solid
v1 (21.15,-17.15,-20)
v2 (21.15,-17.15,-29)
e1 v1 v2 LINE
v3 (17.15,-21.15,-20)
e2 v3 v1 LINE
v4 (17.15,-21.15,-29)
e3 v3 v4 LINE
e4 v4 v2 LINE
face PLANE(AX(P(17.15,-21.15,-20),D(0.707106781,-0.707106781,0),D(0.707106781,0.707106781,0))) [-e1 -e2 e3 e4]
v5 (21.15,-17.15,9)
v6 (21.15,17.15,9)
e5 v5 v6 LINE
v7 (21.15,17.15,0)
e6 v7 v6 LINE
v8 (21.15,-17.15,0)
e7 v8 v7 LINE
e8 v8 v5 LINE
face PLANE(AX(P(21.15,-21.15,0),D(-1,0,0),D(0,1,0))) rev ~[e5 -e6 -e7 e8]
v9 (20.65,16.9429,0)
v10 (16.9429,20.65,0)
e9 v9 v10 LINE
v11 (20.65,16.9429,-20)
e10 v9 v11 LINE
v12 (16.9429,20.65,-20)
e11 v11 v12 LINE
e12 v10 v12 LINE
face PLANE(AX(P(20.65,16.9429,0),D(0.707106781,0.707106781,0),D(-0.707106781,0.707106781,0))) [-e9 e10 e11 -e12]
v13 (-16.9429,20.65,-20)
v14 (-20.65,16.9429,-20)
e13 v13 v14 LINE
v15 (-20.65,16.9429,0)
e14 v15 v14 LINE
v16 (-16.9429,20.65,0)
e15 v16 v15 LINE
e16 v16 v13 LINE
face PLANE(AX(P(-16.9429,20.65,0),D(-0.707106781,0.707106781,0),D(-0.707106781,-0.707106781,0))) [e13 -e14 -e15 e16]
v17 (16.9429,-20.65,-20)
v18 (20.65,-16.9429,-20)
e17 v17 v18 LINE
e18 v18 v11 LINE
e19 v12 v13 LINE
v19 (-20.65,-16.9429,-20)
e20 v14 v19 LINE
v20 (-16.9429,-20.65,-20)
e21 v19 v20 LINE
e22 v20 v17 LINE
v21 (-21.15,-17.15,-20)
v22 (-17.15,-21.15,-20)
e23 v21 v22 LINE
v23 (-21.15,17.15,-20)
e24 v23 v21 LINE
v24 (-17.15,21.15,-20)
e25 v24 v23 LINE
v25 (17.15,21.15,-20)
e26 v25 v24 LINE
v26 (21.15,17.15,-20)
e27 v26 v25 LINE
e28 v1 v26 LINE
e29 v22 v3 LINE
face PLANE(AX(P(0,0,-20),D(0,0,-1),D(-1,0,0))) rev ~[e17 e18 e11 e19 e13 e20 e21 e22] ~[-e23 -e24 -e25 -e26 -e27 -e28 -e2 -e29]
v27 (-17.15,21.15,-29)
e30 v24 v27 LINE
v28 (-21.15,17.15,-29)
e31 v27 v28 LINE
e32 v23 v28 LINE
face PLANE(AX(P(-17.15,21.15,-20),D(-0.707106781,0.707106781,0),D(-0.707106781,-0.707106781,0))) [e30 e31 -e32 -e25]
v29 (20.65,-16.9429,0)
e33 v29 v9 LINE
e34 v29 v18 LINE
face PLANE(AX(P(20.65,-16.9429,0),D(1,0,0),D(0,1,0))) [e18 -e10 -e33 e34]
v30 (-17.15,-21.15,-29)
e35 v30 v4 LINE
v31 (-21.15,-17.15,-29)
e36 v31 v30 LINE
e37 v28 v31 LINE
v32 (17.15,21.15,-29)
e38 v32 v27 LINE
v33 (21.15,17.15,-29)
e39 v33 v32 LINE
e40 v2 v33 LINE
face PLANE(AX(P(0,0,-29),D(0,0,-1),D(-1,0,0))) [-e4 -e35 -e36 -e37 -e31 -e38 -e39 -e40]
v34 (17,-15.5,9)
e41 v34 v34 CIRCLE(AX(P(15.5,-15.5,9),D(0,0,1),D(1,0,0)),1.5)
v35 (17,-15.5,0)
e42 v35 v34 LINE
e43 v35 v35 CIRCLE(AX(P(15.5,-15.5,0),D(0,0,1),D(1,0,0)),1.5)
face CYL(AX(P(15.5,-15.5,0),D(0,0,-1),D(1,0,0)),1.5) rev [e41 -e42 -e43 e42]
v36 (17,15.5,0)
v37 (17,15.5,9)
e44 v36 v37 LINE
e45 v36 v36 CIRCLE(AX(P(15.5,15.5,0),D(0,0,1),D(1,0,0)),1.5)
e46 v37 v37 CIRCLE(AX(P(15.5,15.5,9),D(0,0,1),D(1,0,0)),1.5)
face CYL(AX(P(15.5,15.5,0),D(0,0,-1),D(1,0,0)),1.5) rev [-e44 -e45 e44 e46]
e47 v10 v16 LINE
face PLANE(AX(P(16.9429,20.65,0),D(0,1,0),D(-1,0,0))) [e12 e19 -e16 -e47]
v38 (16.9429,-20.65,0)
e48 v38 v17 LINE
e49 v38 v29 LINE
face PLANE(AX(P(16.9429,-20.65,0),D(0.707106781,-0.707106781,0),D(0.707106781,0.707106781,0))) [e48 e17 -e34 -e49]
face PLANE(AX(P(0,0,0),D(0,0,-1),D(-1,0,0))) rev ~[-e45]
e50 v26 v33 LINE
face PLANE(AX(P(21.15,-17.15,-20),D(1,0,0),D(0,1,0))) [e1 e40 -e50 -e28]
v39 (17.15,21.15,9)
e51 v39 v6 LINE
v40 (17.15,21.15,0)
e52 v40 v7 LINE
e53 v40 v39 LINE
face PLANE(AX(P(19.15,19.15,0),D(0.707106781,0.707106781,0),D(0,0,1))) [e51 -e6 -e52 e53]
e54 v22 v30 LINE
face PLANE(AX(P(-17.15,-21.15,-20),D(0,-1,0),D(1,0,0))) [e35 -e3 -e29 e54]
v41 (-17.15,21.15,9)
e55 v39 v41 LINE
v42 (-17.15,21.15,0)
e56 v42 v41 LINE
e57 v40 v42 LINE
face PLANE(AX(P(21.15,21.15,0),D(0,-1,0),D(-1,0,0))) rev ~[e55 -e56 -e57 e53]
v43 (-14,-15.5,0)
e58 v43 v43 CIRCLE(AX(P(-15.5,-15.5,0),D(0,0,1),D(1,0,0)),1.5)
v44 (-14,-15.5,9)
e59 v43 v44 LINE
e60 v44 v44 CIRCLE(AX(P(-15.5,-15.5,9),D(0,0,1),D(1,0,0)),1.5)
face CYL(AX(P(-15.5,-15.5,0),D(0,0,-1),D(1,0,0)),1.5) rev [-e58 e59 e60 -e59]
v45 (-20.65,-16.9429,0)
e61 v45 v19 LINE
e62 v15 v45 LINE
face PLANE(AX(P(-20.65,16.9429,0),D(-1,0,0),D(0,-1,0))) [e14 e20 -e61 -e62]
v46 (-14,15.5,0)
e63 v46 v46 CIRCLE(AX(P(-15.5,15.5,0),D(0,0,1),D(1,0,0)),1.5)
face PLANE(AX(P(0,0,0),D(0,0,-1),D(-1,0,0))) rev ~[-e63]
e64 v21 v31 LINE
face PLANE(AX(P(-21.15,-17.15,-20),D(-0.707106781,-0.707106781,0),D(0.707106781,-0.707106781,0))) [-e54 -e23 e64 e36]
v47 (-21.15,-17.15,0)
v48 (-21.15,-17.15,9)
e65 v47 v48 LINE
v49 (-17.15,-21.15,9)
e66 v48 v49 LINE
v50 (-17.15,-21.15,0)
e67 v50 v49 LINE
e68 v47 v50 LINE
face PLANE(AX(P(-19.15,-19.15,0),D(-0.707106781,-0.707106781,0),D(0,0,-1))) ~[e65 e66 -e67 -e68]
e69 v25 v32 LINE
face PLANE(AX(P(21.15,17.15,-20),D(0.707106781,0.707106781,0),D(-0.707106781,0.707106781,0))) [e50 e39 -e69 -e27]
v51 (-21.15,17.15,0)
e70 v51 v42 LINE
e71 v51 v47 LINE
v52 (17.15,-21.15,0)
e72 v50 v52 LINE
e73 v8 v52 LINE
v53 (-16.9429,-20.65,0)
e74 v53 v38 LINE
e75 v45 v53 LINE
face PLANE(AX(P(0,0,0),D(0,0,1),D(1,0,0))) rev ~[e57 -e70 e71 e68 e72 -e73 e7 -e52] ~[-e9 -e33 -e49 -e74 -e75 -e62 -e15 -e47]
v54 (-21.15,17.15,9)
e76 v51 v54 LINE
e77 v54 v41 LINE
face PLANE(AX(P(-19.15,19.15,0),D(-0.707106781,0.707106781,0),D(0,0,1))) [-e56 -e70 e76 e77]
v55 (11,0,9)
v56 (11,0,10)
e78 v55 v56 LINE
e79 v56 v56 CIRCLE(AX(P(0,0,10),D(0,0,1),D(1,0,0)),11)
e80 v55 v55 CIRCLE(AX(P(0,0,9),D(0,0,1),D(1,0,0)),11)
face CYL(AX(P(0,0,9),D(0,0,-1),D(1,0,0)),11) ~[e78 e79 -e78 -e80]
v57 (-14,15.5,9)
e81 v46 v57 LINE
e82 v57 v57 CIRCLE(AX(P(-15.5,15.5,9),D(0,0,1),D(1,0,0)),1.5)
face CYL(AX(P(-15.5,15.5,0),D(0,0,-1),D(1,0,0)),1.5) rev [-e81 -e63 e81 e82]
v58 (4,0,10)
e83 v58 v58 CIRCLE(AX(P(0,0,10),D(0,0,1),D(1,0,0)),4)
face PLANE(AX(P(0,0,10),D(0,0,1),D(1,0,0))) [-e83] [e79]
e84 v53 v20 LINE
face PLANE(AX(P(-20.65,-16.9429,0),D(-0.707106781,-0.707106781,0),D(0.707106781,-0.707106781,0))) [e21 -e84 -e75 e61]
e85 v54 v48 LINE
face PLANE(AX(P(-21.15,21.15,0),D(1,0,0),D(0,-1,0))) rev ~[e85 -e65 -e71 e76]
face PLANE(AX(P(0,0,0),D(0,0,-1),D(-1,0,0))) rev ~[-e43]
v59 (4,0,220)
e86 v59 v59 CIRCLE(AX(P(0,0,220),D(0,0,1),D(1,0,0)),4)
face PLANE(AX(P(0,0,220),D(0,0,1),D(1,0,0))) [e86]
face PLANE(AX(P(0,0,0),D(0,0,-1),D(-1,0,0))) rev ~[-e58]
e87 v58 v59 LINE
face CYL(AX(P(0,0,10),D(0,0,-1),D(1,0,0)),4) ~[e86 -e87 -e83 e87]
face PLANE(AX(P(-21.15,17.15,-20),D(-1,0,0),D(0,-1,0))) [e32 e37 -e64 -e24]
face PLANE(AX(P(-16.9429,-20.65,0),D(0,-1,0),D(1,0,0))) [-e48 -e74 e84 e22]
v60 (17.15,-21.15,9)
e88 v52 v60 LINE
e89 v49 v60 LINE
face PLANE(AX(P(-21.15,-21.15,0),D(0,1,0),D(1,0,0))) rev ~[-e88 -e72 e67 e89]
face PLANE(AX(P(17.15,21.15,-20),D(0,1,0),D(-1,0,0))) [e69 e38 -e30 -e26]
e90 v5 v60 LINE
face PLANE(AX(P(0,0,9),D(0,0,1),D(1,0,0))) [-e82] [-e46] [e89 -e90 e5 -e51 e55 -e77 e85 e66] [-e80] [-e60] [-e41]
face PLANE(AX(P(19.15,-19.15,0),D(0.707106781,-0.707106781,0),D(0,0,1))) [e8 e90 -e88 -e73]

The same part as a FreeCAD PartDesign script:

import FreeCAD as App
import Part
import Sketcher

V = App.Vector


def edges_at(feature, points):
    """Names of the edges that pass closest to the given points."""
    edges = feature.Shape.Edges
    near = lambda p: min(range(len(edges)), key=lambda i: edges[i].distToShape(Part.Vertex(*p))[0])
    return sorted({f"Edge{near(p) + 1}" for p in points})

doc = App.newDocument("Part")
body = doc.addObject("PartDesign::Body", "Body")

# Sketch on XY plane
sketch1 = body.newObject("Sketcher::SketchObject", "Sketch")
sketch1.AttachmentSupport = (doc.getObject("XY_Plane"), [""])
sketch1.MapMode = "FlatFace"
sketch1.addGeometry(Part.LineSegment(V(-21.1, 21.1, 0), V(-21.1, -21.1, 0)), False)
sketch1.addGeometry(Part.LineSegment(V(-21.1, -21.1, 0), V(21.1, -21.1, 0)), False)
sketch1.addGeometry(Part.LineSegment(V(21.1, -21.1, 0), V(21.1, 21.1, 0)), False)
sketch1.addGeometry(Part.LineSegment(V(21.1, 21.1, 0), V(-21.1, 21.1, 0)), False)
sketch1.addGeometry(Part.Circle(V(-15.5, -15.5, 0), V(0, 0, 1), 1.5), False)
sketch1.addGeometry(Part.Circle(V(15.5, -15.5, 0), V(0, 0, 1), 1.5), False)
sketch1.addGeometry(Part.Circle(V(-15.5, 15.5, 0), V(0, 0, 1), 1.5), False)
sketch1.addGeometry(Part.Circle(V(15.5, 15.5, 0), V(0, 0, 1), 1.5), False)
sketch1.addConstraint(Sketcher.Constraint("Coincident", 0, 2, 1, 1))
sketch1.addConstraint(Sketcher.Constraint("Coincident", 1, 2, 2, 1))
sketch1.addConstraint(Sketcher.Constraint("Coincident", 2, 2, 3, 1))
sketch1.addConstraint(Sketcher.Constraint("Coincident", 3, 2, 0, 1))
sketch1.addConstraint(Sketcher.Constraint("Vertical", 0))
sketch1.addConstraint(Sketcher.Constraint("Horizontal", 1))
sketch1.addConstraint(Sketcher.Constraint("Vertical", 2))
sketch1.addConstraint(Sketcher.Constraint("Horizontal", 3))
sketch1.addConstraint(Sketcher.Constraint("Equal", 4, 5))
sketch1.addConstraint(Sketcher.Constraint("Equal", 5, 6))
sketch1.addConstraint(Sketcher.Constraint("Equal", 6, 7))
sketch1.addConstraint(Sketcher.Constraint("Symmetric", 5, 3, 6, 3, -1, 1))
sketch1.addConstraint(Sketcher.Constraint("Symmetric", 4, 3, 7, 3, -1, 1))
sketch1.addConstraint(Sketcher.Constraint("Symmetric", 0, 2, 2, 2, -1, 1))
sketch1.addConstraint(Sketcher.Constraint("Symmetric", 4, 3, 5, 3, -2))
sketch1.addConstraint(Sketcher.Constraint("Equal", 3, 0))
sketch1.addConstraint(Sketcher.Constraint("Diameter", 4, 3.0))
sketch1.addConstraint(Sketcher.Constraint("DistanceX", 1, 1, 1, 2, 42.3))
sketch1.addConstraint(Sketcher.Constraint("DistanceX", 4, 3, 5, 3, 31.0))
sketch1.addConstraint(Sketcher.Constraint("DistanceY", 4, 3, 6, 3, 31.0))
pad1 = body.newObject("PartDesign::Pad", "Pad")
pad1.Profile = sketch1
pad1.Length = 9
doc.recompute()

chamfer = body.newObject("PartDesign::Chamfer", "Chamfer")
chamfer.Base = (pad1, edges_at(pad1, [
    (21.15, 21.15, 4.5),
    (21.15, -21.15, 4.5),
    (-21.15, 21.15, 4.5),
    (-21.15, -21.15, 4.5),
]))
chamfer.Size = 4

# Sketch on XY plane
sketch2 = body.newObject("Sketcher::SketchObject", "Sketch001")
sketch2.AttachmentSupport = (doc.getObject("XY_Plane"), [""])
sketch2.MapMode = "FlatFace"
sketch2.addGeometry(Part.LineSegment(V(17, 21, 0), V(21, 17, 0)), False)
sketch2.addGeometry(Part.LineSegment(V(21, 17, 0), V(21, -17, 0)), False)
sketch2.addGeometry(Part.LineSegment(V(21, -17, 0), V(17, -21, 0)), False)
sketch2.addGeometry(Part.LineSegment(V(17, -21, 0), V(-17, -21, 0)), False)
sketch2.addGeometry(Part.LineSegment(V(-17, -21, 0), V(-21, -17, 0)), False)
sketch2.addGeometry(Part.LineSegment(V(-21, -17, 0), V(-21, 17, 0)), False)
sketch2.addGeometry(Part.LineSegment(V(-21, 17, 0), V(-17, 21, 0)), False)
sketch2.addGeometry(Part.LineSegment(V(-17, 21, 0), V(17, 21, 0)), False)
sketch2.addConstraint(Sketcher.Constraint("Coincident", 0, 2, 1, 1))
sketch2.addConstraint(Sketcher.Constraint("Coincident", 1, 2, 2, 1))
sketch2.addConstraint(Sketcher.Constraint("Coincident", 2, 2, 3, 1))
sketch2.addConstraint(Sketcher.Constraint("Coincident", 3, 2, 4, 1))
sketch2.addConstraint(Sketcher.Constraint("Coincident", 4, 2, 5, 1))
sketch2.addConstraint(Sketcher.Constraint("Coincident", 5, 2, 6, 1))
sketch2.addConstraint(Sketcher.Constraint("Coincident", 6, 2, 7, 1))
sketch2.addConstraint(Sketcher.Constraint("Coincident", 7, 2, 0, 1))
sketch2.addConstraint(Sketcher.Constraint("Vertical", 1))
sketch2.addConstraint(Sketcher.Constraint("Horizontal", 3))
sketch2.addConstraint(Sketcher.Constraint("Vertical", 5))
sketch2.addConstraint(Sketcher.Constraint("Horizontal", 7))
sketch2.addConstraint(Sketcher.Constraint("Symmetric", 0, 2, 4, 2, -1, 1))
sketch2.addConstraint(Sketcher.Constraint("Symmetric", 2, 2, 6, 2, -1, 1))
sketch2.addConstraint(Sketcher.Constraint("Perpendicular", 0, 2))
sketch2.addConstraint(Sketcher.Constraint("Perpendicular", 2, 4))
sketch2.addConstraint(Sketcher.Constraint("Perpendicular", 4, 6))
sketch2.addConstraint(Sketcher.Constraint("Horizontal", 1, 2, 4, 2))
sketch2.addConstraint(Sketcher.Constraint("Vertical", 3, 2, 6, 2))
sketch2.addConstraint(Sketcher.Constraint("Equal", 7, 1))
sketch2.addConstraint(Sketcher.Constraint("DistanceX", 4, 2, 1, 2, 41.3))
sketch2.addConstraint(Sketcher.Constraint("DistanceX", 3, 2, 3, 1, 33.8858))
pad2 = body.newObject("PartDesign::Pad", "Pad001")
pad2.Profile = sketch2
pad2.Length = 20
pad2.Reversed = True

# Sketch on XY plane
sketch3 = body.newObject("Sketcher::SketchObject", "Sketch002")
sketch3.AttachmentSupport = (doc.getObject("XY_Plane"), [""])
sketch3.MapMode = "FlatFace"
sketch3.AttachmentOffset = App.Placement(V(0, 0, -20), App.Rotation())
sketch3.addGeometry(Part.LineSegment(V(17, 21, 0), V(21, 17, 0)), False)
sketch3.addGeometry(Part.LineSegment(V(21, 17, 0), V(21, -17, 0)), False)
sketch3.addGeometry(Part.LineSegment(V(21, -17, 0), V(17, -21, 0)), False)
sketch3.addGeometry(Part.LineSegment(V(17, -21, 0), V(-17, -21, 0)), False)
sketch3.addGeometry(Part.LineSegment(V(-17, -21, 0), V(-21, -17, 0)), False)
sketch3.addGeometry(Part.LineSegment(V(-21, -17, 0), V(-21, 17, 0)), False)
sketch3.addGeometry(Part.LineSegment(V(-21, 17, 0), V(-17, 21, 0)), False)
sketch3.addGeometry(Part.LineSegment(V(-17, 21, 0), V(17, 21, 0)), False)
sketch3.addConstraint(Sketcher.Constraint("Coincident", 0, 2, 1, 1))
sketch3.addConstraint(Sketcher.Constraint("Coincident", 1, 2, 2, 1))
sketch3.addConstraint(Sketcher.Constraint("Coincident", 2, 2, 3, 1))
sketch3.addConstraint(Sketcher.Constraint("Coincident", 3, 2, 4, 1))
sketch3.addConstraint(Sketcher.Constraint("Coincident", 4, 2, 5, 1))
sketch3.addConstraint(Sketcher.Constraint("Coincident", 5, 2, 6, 1))
sketch3.addConstraint(Sketcher.Constraint("Coincident", 6, 2, 7, 1))
sketch3.addConstraint(Sketcher.Constraint("Coincident", 7, 2, 0, 1))
sketch3.addConstraint(Sketcher.Constraint("Vertical", 1))
sketch3.addConstraint(Sketcher.Constraint("Horizontal", 3))
sketch3.addConstraint(Sketcher.Constraint("Vertical", 5))
sketch3.addConstraint(Sketcher.Constraint("Horizontal", 7))
sketch3.addConstraint(Sketcher.Constraint("Symmetric", 0, 2, 4, 2, -1, 1))
sketch3.addConstraint(Sketcher.Constraint("Symmetric", 2, 2, 6, 2, -1, 1))
sketch3.addConstraint(Sketcher.Constraint("Perpendicular", 0, 2))
sketch3.addConstraint(Sketcher.Constraint("Perpendicular", 2, 4))
sketch3.addConstraint(Sketcher.Constraint("Perpendicular", 4, 6))
sketch3.addConstraint(Sketcher.Constraint("Horizontal", 1, 2, 4, 2))
sketch3.addConstraint(Sketcher.Constraint("Vertical", 3, 2, 6, 2))
sketch3.addConstraint(Sketcher.Constraint("Equal", 7, 1))
sketch3.addConstraint(Sketcher.Constraint("DistanceX", 3, 2, 3, 1, 34.3))
sketch3.addConstraint(Sketcher.Constraint("DistanceX", 2, 2, 1, 2, 4.0))
pad3 = body.newObject("PartDesign::Pad", "Pad002")
pad3.Profile = sketch3
pad3.Length = 9
pad3.Reversed = True

# Sketch on XY plane
sketch4 = body.newObject("Sketcher::SketchObject", "Sketch003")
sketch4.AttachmentSupport = (doc.getObject("XY_Plane"), [""])
sketch4.MapMode = "FlatFace"
sketch4.AttachmentOffset = App.Placement(V(0, 0, 9), App.Rotation())
sketch4.addGeometry(Part.Circle(V(0, 0, 0), V(0, 0, 1), 11), False)
sketch4.addConstraint(Sketcher.Constraint("Coincident", 0, 3, -1, 1))
sketch4.addConstraint(Sketcher.Constraint("Diameter", 0, 22.0))
pad4 = body.newObject("PartDesign::Pad", "Pad003")
pad4.Profile = sketch4
pad4.Length = 1

# Sketch on XY plane
sketch5 = body.newObject("Sketcher::SketchObject", "Sketch004")
sketch5.AttachmentSupport = (doc.getObject("XY_Plane"), [""])
sketch5.MapMode = "FlatFace"
sketch5.AttachmentOffset = App.Placement(V(0, 0, 10), App.Rotation())
sketch5.addGeometry(Part.Circle(V(0, 0, 0), V(0, 0, 1), 4), False)
sketch5.addConstraint(Sketcher.Constraint("Coincident", 0, 3, -1, 1))
sketch5.addConstraint(Sketcher.Constraint("Diameter", 0, 8.0))
pad5 = body.newObject("PartDesign::Pad", "Pad004")
pad5.Profile = sketch5
pad5.Length = 210

doc.recompute()
